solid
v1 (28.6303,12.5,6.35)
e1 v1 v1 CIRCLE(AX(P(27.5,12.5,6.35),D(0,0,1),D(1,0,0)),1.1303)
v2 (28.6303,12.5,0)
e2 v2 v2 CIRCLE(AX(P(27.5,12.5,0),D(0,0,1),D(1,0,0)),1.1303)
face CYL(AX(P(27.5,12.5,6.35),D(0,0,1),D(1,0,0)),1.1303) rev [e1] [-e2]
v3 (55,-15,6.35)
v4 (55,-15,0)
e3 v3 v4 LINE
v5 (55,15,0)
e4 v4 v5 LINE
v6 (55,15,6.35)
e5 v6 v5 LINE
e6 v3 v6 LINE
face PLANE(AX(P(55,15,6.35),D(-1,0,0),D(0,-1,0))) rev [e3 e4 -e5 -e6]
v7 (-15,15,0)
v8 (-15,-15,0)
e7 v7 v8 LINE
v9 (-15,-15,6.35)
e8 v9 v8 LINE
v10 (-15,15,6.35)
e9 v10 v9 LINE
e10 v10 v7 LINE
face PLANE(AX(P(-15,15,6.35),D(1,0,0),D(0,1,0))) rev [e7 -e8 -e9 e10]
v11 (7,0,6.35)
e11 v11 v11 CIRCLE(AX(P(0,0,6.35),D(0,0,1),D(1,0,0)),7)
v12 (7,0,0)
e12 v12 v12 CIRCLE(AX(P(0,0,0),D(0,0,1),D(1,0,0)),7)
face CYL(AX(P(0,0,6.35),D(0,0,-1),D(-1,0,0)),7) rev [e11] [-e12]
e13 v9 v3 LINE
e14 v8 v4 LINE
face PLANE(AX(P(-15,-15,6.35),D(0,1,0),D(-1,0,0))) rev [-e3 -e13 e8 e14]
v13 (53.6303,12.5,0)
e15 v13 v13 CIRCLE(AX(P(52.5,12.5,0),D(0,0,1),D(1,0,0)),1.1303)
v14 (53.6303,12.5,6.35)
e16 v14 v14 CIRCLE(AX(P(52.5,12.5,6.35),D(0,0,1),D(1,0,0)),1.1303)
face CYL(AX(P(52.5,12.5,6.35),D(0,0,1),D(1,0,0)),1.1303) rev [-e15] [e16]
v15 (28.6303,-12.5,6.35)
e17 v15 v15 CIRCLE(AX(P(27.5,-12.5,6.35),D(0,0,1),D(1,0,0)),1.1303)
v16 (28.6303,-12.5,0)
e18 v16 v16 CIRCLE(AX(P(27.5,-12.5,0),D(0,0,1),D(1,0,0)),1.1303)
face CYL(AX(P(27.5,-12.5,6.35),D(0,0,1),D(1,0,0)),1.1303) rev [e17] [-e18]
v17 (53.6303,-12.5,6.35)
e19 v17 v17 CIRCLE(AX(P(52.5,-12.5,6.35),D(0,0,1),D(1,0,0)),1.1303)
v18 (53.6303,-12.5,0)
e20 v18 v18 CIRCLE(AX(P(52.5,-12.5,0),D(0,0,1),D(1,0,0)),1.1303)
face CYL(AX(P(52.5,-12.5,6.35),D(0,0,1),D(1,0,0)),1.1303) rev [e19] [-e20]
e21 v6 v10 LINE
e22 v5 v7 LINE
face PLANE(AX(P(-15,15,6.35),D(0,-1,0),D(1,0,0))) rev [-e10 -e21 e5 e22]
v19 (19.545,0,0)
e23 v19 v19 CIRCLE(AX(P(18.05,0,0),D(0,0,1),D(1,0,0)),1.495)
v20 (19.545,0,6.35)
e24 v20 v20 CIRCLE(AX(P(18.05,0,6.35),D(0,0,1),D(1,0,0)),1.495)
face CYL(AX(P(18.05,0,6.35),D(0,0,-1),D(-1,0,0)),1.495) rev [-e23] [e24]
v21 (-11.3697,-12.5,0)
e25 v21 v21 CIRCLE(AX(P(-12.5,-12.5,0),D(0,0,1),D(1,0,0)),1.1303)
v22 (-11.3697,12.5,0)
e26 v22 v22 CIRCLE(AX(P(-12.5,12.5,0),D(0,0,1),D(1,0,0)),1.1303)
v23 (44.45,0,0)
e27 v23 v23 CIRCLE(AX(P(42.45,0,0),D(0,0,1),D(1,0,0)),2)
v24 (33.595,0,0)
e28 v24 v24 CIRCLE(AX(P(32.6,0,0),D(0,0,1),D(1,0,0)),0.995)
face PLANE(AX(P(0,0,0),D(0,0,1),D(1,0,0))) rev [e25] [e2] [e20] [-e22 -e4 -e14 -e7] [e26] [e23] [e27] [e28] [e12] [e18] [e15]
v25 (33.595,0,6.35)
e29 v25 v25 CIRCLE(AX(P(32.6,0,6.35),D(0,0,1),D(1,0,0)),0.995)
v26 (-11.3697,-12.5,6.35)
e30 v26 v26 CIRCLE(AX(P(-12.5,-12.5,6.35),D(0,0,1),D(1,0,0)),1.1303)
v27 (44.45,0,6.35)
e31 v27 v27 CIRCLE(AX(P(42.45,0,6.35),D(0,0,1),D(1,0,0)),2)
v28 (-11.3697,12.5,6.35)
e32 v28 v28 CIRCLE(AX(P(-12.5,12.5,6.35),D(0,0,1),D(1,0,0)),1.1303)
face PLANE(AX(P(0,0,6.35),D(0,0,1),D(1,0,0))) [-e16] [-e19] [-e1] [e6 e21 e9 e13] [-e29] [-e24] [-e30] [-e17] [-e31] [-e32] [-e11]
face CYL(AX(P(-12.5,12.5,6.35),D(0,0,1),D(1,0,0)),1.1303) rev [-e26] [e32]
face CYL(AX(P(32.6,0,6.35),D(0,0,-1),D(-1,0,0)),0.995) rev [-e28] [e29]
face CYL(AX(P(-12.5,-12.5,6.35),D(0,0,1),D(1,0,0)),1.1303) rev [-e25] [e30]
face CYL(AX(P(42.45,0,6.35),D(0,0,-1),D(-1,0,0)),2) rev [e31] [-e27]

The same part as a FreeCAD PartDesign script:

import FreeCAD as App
import Part
import Sketcher
from FreeCAD import Vector


def add_polygon(sketch, points):
    """Adds a closed chain of lines whose ends are joined by coincident constraints."""
    first, n = sketch.GeometryCount, len(points)
    for a, b in zip(points, points[1:] + points[:1]):
        sketch.addGeometry(Part.LineSegment(App.Vector(*a, 0), App.Vector(*b, 0)), False)
    for i in range(n):
        sketch.addConstraint(Sketcher.Constraint("Coincident", first + i, 2, first + (i + 1) % n, 1))

doc = App.newDocument("Part")
body = doc.addObject("PartDesign::Body", "Body")

# Sketch on XY plane
sketch1 = body.newObject("Sketcher::SketchObject", "Sketch")
sketch1.AttachmentSupport = (doc.getObject("XY_Plane"), [""])
sketch1.MapMode = "FlatFace"
add_polygon(sketch1, [(-15, 15), (-15, -15), (55, -15), (55, 15)])  # lines 0-3
sketch1.addGeometry(Part.Circle(Vector(0, 0, 0), Vector(0, 0, 1), 7), False)  # 4
sketch1.addGeometry(Part.Circle(Vector(18.1, 0, 0), Vector(0, 0, 1), 1.5), False)  # 5
sketch1.addGeometry(Part.Circle(Vector(32.6, 0, 0), Vector(0, 0, 1), 1), False)  # 6
sketch1.addGeometry(Part.Circle(Vector(42.4, 0, 0), Vector(0, 0, 1), 2), False)  # 7
sketch1.addConstraint([
    Sketcher.Constraint("Vertical", 0),
    Sketcher.Constraint("Horizontal", 1),
    Sketcher.Constraint("Vertical", 2),
    Sketcher.Constraint("Horizontal", 3),
    Sketcher.Constraint("Coincident", 4, 3, -1, 1),
    Sketcher.Constraint("PointOnObject", 5, 3, -1),
    Sketcher.Constraint("PointOnObject", 6, 3, -1),
    Sketcher.Constraint("PointOnObject", 7, 3, -1),
    Sketcher.Constraint("Diameter", 4, 14.0),
    Sketcher.Constraint("Diameter", 7, 4.0),
    Sketcher.Constraint("Diameter", 5, 2.99),
    Sketcher.Constraint("Diameter", 6, 1.99),
    Sketcher.Constraint("DistanceX", 1, 1, 1, 2, 70.0),
    Sketcher.Constraint("DistanceY", 0, 2, 0, 1, 30.0),
    Sketcher.Constraint("DistanceX", 0, 2, -1, 1, 15.0),
    Sketcher.Constraint("DistanceY", 0, 2, -1, 1, 15.0),
    Sketcher.Constraint("DistanceX", -1, 1, 6, 3, 32.6),
    Sketcher.Constraint("DistanceX", 5, 3, 7, 3, 24.4),
    Sketcher.Constraint("DistanceX", -1, 1, 5, 3, 18.05),
])
pad1 = body.newObject("PartDesign::Pad", "Pad")
pad1.Profile = sketch1
pad1.Length = 6.35

# Sketch on XY plane
sketch2 = body.newObject("Sketcher::SketchObject", "Sketch001")
sketch2.AttachmentSupport = (doc.getObject("XY_Plane"), [""])
sketch2.MapMode = "FlatFace"
sketch2.AttachmentOffset = App.Placement(Vector(0, 0, 6.35), App.Rotation())
sketch2.addGeometry([
    Part.Circle(Vector(-12.5, 12.5, 0), Vector(0, 0, 1), 1.1),  # 0
    Part.Circle(Vector(-12.5, -12.5, 0), Vector(0, 0, 1), 1.1),  # 1
    Part.Circle(Vector(27.5, 12.5, 0), Vector(0, 0, 1), 1.1),  # 2
    Part.Circle(Vector(27.5, -12.5, 0), Vector(0, 0, 1), 1.1),  # 3
    Part.Circle(Vector(52.5, 12.5, 0), Vector(0, 0, 1), 1.1),  # 4
    Part.Circle(Vector(52.5, -12.5, 0), Vector(0, 0, 1), 1.1),  # 5
], False)
sketch2.addConstraint([
    Sketcher.Constraint("Equal", 0, 1),
    Sketcher.Constraint("Equal", 1, 2),
    Sketcher.Constraint("Equal", 2, 3),
    Sketcher.Constraint("Equal", 3, 4),
    Sketcher.Constraint("Equal", 4, 5),
    Sketcher.Constraint("Symmetric", 0, 3, 1, 3, -1),
    Sketcher.Constraint("Symmetric", 2, 3, 3, 3, -1),
    Sketcher.Constraint("Symmetric", 4, 3, 5, 3, -1),
    Sketcher.Constraint("Horizontal", 0, 3, 2, 3),
    Sketcher.Constraint("Horizontal", 2, 3, 4, 3),
    Sketcher.Constraint("DistanceY", 1, 3, 0, 3, 25.0),
    Sketcher.Constraint("DistanceX", 0, 3, 2, 3, 40.0),
    Sketcher.Constraint("DistanceX", 2, 3, 4, 3, 25.0),
    Sketcher.Constraint("Diameter", 0, 2.2606),
    Sketcher.Constraint("DistanceX", 0, 3, -1, 1, 12.5),
])
doc.recompute()
hole = body.newObject("PartDesign::Hole", "Hole")
hole.Profile = sketch2
hole.ThreadType = "None"
hole.Diameter = 2.2606
hole.DepthType = "ThroughAll"

doc.recompute()
